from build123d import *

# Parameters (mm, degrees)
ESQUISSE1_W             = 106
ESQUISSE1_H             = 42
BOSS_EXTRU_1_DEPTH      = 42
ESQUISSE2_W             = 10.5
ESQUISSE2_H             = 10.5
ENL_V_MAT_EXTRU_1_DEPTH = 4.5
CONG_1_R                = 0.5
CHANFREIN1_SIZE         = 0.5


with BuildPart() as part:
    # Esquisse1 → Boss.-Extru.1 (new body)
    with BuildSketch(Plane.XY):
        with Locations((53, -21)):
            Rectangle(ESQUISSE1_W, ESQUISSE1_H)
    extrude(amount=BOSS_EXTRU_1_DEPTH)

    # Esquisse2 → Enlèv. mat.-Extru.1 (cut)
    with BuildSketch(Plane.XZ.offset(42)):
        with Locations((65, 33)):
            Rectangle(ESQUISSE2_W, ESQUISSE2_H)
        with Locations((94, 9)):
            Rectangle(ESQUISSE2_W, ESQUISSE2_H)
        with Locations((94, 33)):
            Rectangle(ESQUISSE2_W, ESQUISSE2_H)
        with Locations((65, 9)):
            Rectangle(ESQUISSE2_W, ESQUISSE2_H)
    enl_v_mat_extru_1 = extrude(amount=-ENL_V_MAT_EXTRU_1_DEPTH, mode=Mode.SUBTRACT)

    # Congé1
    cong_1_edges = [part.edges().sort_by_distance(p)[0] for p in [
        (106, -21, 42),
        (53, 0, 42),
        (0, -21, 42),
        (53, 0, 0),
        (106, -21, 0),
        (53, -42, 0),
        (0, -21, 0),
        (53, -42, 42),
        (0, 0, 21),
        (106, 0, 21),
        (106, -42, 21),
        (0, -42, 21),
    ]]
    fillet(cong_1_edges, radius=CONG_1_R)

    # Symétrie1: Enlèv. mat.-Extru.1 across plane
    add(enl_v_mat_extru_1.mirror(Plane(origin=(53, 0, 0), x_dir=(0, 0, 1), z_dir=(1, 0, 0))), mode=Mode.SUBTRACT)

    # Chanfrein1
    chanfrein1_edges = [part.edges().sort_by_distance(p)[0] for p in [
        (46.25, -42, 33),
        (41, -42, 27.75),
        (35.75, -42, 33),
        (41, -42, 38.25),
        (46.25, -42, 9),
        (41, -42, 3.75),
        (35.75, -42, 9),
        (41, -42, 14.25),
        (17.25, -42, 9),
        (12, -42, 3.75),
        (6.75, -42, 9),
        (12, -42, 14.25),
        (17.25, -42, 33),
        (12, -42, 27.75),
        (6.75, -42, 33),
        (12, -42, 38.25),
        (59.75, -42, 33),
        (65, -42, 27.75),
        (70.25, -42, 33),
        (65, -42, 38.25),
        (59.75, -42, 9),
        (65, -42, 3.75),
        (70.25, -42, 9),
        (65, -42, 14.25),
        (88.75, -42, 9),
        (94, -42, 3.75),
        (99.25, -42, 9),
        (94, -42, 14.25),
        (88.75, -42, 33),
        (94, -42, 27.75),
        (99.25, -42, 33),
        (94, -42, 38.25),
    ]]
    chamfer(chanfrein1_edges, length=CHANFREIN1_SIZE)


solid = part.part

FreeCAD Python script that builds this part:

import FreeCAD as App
import Part
import Sketcher
from FreeCAD import Vector


def edges_at(feature, points):
    """Names of the edges that pass closest to the given points."""
    edges = feature.Shape.Edges
    near = lambda p: min(range(len(edges)), key=lambda i: edges[i].distToShape(Part.Vertex(*p))[0])
    return sorted({f"Edge{near(p) + 1}" for p in points})


def add_polygon(sketch, points):
    """Adds a closed chain of lines whose ends are joined by coincident constraints."""
    first, n = sketch.GeometryCount, len(points)
    for a, b in zip(points, points[1:] + points[:1]):
        sketch.addGeometry(Part.LineSegment(App.Vector(*a, 0), App.Vector(*b, 0)), False)
    for i in range(n):
        sketch.addConstraint(Sketcher.Constraint("Coincident", first + i, 2, first + (i + 1) % n, 1))

doc = App.newDocument("Part")
body = doc.addObject("PartDesign::Body", "Body")

# Sketch on XY plane
sketch1 = body.newObject("Sketcher::SketchObject", "Sketch")
sketch1.AttachmentSupport = (doc.getObject("XY_Plane"), [""])
sketch1.MapMode = "FlatFace"
add_polygon(sketch1, [(0, 0), (0, -42), (106, -42), (106, 0)])  # lines 0-3
sketch1.addConstraint([
    Sketcher.Constraint("Vertical", 0),
    Sketcher.Constraint("Horizontal", 1),
    Sketcher.Constraint("Vertical", 2),
    Sketcher.Constraint("Horizontal", 3),
    Sketcher.Constraint("Coincident", 3, 2, -1, 1),
    Sketcher.Constraint("DistanceX", 1, 1, 1, 2, 106.0),
    Sketcher.Constraint("DistanceY", 0, 2, 0, 1, 42.0),
])
pad1 = body.newObject("PartDesign::Pad", "Pad")
pad1.Profile = sketch1
pad1.Length = 42

# Sketch on XZ plane
sketch2 = body.newObject("Sketcher::SketchObject", "Sketch001")
sketch2.AttachmentSupport = (doc.getObject("XZ_Plane"), [""])
sketch2.MapMode = "FlatFace"
sketch2.AttachmentOffset = App.Placement(Vector(0, 0, 42), App.Rotation())
add_polygon(sketch2, [(59.75, 38.25), (59.75, 27.75), (70.25, 27.75), (70.25, 38.25)])  # lines 0-3
add_polygon(sketch2, [(88.75, 14.25), (88.75, 3.75), (99.25, 3.75), (99.25, 14.25)])  # lines 4-7
add_polygon(sketch2, [(88.75, 38.25), (88.75, 27.75), (99.25, 27.75), (99.25, 38.25)])  # lines 8-11
add_polygon(sketch2, [(59.75, 14.25), (59.75, 3.75), (70.25, 3.75), (70.25, 14.25)])  # lines 12-15
sketch2.addConstraint([
    Sketcher.Constraint("Vertical", 0),
    Sketcher.Constraint("Horizontal", 1),
    Sketcher.Constraint("Vertical", 2),
    Sketcher.Constraint("Horizontal", 3),
    Sketcher.Constraint("Vertical", 4),
    Sketcher.Constraint("Horizontal", 5),
    Sketcher.Constraint("Vertical", 6),
    Sketcher.Constraint("Horizontal", 7),
    Sketcher.Constraint("Vertical", 8),
    Sketcher.Constraint("Horizontal", 9),
    Sketcher.Constraint("Vertical", 10),
    Sketcher.Constraint("Horizontal", 11),
    Sketcher.Constraint("Vertical", 12),
    Sketcher.Constraint("Horizontal", 13),
    Sketcher.Constraint("Vertical", 14),
    Sketcher.Constraint("Horizontal", 15),
    Sketcher.Constraint("Horizontal", 1, 2, 8, 2),
    Sketcher.Constraint("Horizontal", 3, 2, 10, 2),
    Sketcher.Constraint("Horizontal", 5, 2, 12, 2),
    Sketcher.Constraint("Horizontal", 7, 2, 14, 2),
    Sketcher.Constraint("Vertical", 7, 2, 8, 2),
    Sketcher.Constraint("Vertical", 6, 2, 9, 2),
    Sketcher.Constraint("Vertical", 3, 2, 12, 2),
    Sketcher.Constraint("Vertical", 2, 2, 13, 2),
    Sketcher.Constraint("Equal", 3, 5),
    Sketcher.Constraint("Equal", 15, 0),
    Sketcher.Constraint("Equal", 2, 4),
    Sketcher.Constraint("DistanceX", 1, 1, 1, 2, 10.5),
    Sketcher.Constraint("DistanceY", 4, 2, 1, 2, 24.0),
    Sketcher.Constraint("DistanceX", 0, 2, 4, 2, 29.0),
    Sketcher.Constraint("DistanceX", -1, 1, 0, 2, 59.75),
    Sketcher.Constraint("DistanceY", -1, 1, 0, 2, 27.75),
])
pocket1 = body.newObject("PartDesign::Pocket", "Pocket")
pocket1.Profile = sketch2
pocket1.Length = 4.5
doc.recompute()

fillet = body.newObject("PartDesign::Fillet", "Fillet")
fillet.Base = (pocket1, edges_at(pocket1, [
    (106, -21, 42),
    (53, 0, 42),
    (0, -21, 42),
    (53, 0, 0),
    (106, -21, 0),
    (53, -42, 0),
    (0, -21, 0),
    (53, -42, 42),
    (0, 0, 21),
    (106, 0, 21),
    (106, -42, 21),
    (0, -42, 21),
]))
fillet.Radius = 0.5
doc.recompute()

datumplane = body.newObject("PartDesign::Plane", "DatumPlane")
datumplane.AttachmentSupport = (doc.getObject("YZ_Plane"), [""])
datumplane.MapMode = "FlatFace"
datumplane.AttachmentOffset = App.Placement(Vector(0, 0, 53), App.Rotation())
mirrored = body.newObject("PartDesign::Mirrored", "Mirrored")
mirrored.Originals = [pocket1]
mirrored.MirrorPlane = (datumplane, [""])
body.Tip = mirrored
doc.recompute()

chamfer = body.newObject("PartDesign::Chamfer", "Chamfer")
chamfer.Base = (mirrored, edges_at(mirrored, [
    (46.25, -42, 33),
    (41, -42, 27.75),
    (35.75, -42, 33),
    (41, -42, 38.25),
    (46.25, -42, 9),
    (41, -42, 3.75),
    (35.75, -42, 9),
    (41, -42, 14.25),
    (17.25, -42, 9),
    (12, -42, 3.75),
    (6.75, -42, 9),
    (12, -42, 14.25),
    (17.25, -42, 33),
    (12, -42, 27.75),
    (6.75, -42, 33),
    (12, -42, 38.25),
    (59.75, -42, 33),
    (65, -42, 27.75),
    (70.25, -42, 33),
    (65, -42, 38.25),
    (59.75, -42, 9),
    (65, -42, 3.75),
    (70.25, -42, 9),
    (65, -42, 14.25),
    (88.75, -42, 9),
    (94, -42, 3.75),
    (99.25, -42, 9),
    (94, -42, 14.25),
    (88.75, -42, 33),
    (94, -42, 27.75),
    (99.25, -42, 33),
    (94, -42, 38.25),
]))
chamfer.Size = 0.5

doc.recompute()
